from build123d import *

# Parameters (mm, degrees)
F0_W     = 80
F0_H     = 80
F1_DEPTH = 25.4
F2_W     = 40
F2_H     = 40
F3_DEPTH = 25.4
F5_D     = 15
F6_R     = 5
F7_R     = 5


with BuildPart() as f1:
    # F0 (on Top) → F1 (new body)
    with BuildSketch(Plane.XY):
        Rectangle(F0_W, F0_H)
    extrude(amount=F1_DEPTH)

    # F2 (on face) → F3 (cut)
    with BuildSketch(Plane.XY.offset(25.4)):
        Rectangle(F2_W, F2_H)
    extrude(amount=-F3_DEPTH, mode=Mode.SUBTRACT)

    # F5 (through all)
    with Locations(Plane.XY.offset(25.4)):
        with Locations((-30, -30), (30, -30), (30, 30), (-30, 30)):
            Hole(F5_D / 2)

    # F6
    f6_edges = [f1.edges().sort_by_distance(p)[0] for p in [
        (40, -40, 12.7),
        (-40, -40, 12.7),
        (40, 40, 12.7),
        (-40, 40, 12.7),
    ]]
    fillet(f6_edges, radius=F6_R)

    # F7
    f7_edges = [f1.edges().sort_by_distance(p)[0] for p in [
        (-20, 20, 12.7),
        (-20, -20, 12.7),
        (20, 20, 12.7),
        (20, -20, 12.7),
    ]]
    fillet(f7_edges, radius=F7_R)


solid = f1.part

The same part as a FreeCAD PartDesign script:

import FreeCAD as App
import Part
import Sketcher
from FreeCAD import Vector


def edges_at(feature, points):
    """Names of the edges that pass closest to the given points."""
    edges = feature.Shape.Edges
    near = lambda p: min(range(len(edges)), key=lambda i: edges[i].distToShape(Part.Vertex(*p))[0])
    return sorted({f"Edge{near(p) + 1}" for p in points})

doc = App.newDocument("Part")
body = doc.addObject("PartDesign::Body", "Body")

# Sketch on XY plane
sketch1 = body.newObject("Sketcher::SketchObject", "Sketch")
sketch1.AttachmentSupport = (doc.getObject("XY_Plane"), [""])
sketch1.MapMode = "FlatFace"
sketch1.addGeometry(Part.LineSegment(Vector(-40, 40, 0), Vector(-40, -40, 0)), False)
sketch1.addGeometry(Part.LineSegment(Vector(-40, -40, 0), Vector(40, -40, 0)), False)
sketch1.addGeometry(Part.LineSegment(Vector(40, -40, 0), Vector(40, 40, 0)), False)
sketch1.addGeometry(Part.LineSegment(Vector(40, 40, 0), Vector(-40, 40, 0)), False)
sketch1.addConstraint(Sketcher.Constraint("Coincident", 0, 2, 1, 1))
sketch1.addConstraint(Sketcher.Constraint("Coincident", 1, 2, 2, 1))
sketch1.addConstraint(Sketcher.Constraint("Coincident", 2, 2, 3, 1))
sketch1.addConstraint(Sketcher.Constraint("Coincident", 3, 2, 0, 1))
sketch1.addConstraint(Sketcher.Constraint("Vertical", 0))
sketch1.addConstraint(Sketcher.Constraint("Horizontal", 1))
sketch1.addConstraint(Sketcher.Constraint("Vertical", 2))
sketch1.addConstraint(Sketcher.Constraint("Horizontal", 3))
sketch1.addConstraint(Sketcher.Constraint("Symmetric", 0, 2, 2, 2, -1, 1))
sketch1.addConstraint(Sketcher.Constraint("Equal", 3, 0))
sketch1.addConstraint(Sketcher.Constraint("DistanceX", 1, 1, 1, 2, 80.0))
pad1 = body.newObject("PartDesign::Pad", "Pad")
pad1.Profile = sketch1
pad1.Length = 25.4

# Sketch on XY plane
sketch2 = body.newObject("Sketcher::SketchObject", "Sketch001")
sketch2.AttachmentSupport = (doc.getObject("XY_Plane"), [""])
sketch2.MapMode = "FlatFace"
sketch2.AttachmentOffset = App.Placement(Vector(0, 0, 25.4), App.Rotation())
sketch2.addGeometry(Part.LineSegment(Vector(-20, 20, 0), Vector(-20, -20, 0)), False)
sketch2.addGeometry(Part.LineSegment(Vector(-20, -20, 0), Vector(20, -20, 0)), False)
sketch2.addGeometry(Part.LineSegment(Vector(20, -20, 0), Vector(20, 20, 0)), False)
sketch2.addGeometry(Part.LineSegment(Vector(20, 20, 0), Vector(-20, 20, 0)), False)
sketch2.addConstraint(Sketcher.Constraint("Coincident", 0, 2, 1, 1))
sketch2.addConstraint(Sketcher.Constraint("Coincident", 1, 2, 2, 1))
sketch2.addConstraint(Sketcher.Constraint("Coincident", 2, 2, 3, 1))
sketch2.addConstraint(Sketcher.Constraint("Coincident", 3, 2, 0, 1))
sketch2.addConstraint(Sketcher.Constraint("Vertical", 0))
sketch2.addConstraint(Sketcher.Constraint("Horizontal", 1))
sketch2.addConstraint(Sketcher.Constraint("Vertical", 2))
sketch2.addConstraint(Sketcher.Constraint("Horizontal", 3))
sketch2.addConstraint(Sketcher.Constraint("Symmetric", 0, 2, 2, 2, -1, 1))
sketch2.addConstraint(Sketcher.Constraint("Equal", 3, 0))
sketch2.addConstraint(Sketcher.Constraint("DistanceX", 1, 1, 1, 2, 40.0))
pocket1 = body.newObject("PartDesign::Pocket", "Pocket")
pocket1.Profile = sketch2
pocket1.Length = 25.4

# Sketch on XY plane
sketch3 = body.newObject("Sketcher::SketchObject", "Sketch002")
sketch3.AttachmentSupport = (doc.getObject("XY_Plane"), [""])
sketch3.MapMode = "FlatFace"
sketch3.AttachmentOffset = App.Placement(Vector(0, 0, 25.4), App.Rotation())
sketch3.addGeometry(Part.Circle(Vector(-30, -30, 0), Vector(0, 0, 1), 8), False)
sketch3.addGeometry(Part.Circle(Vector(30, -30, 0), Vector(0, 0, 1), 8), False)
sketch3.addGeometry(Part.Circle(Vector(30, 30, 0), Vector(0, 0, 1), 8), False)
sketch3.addGeometry(Part.Circle(Vector(-30, 30, 0), Vector(0, 0, 1), 8), False)
sketch3.addConstraint(Sketcher.Constraint("Equal", 0, 1))
sketch3.addConstraint(Sketcher.Constraint("Equal", 1, 2))
sketch3.addConstraint(Sketcher.Constraint("Equal", 2, 3))
sketch3.addConstraint(Sketcher.Constraint("Symmetric", 0, 3, 2, 3, -1, 1))
sketch3.addConstraint(Sketcher.Constraint("Symmetric", 1, 3, 3, 3, -1, 1))
sketch3.addConstraint(Sketcher.Constraint("Symmetric", 0, 3, 1, 3, -2))
sketch3.addConstraint(Sketcher.Constraint("Diameter", 0, 15.0))
sketch3.addConstraint(Sketcher.Constraint("DistanceX", 0, 3, -1, 1, 30.0))
sketch3.addConstraint(Sketcher.Constraint("DistanceY", 0, 3, -1, 1, 30.0))
doc.recompute()
hole = body.newObject("PartDesign::Hole", "Hole")
hole.Profile = sketch3
hole.ThreadType = "None"
hole.Diameter = 15
hole.DepthType = "ThroughAll"
doc.recompute()

fillet = body.newObject("PartDesign::Fillet", "Fillet")
fillet.Base = (hole, edges_at(hole, [
    (40, -40, 12.7),
    (-40, -40, 12.7),
    (40, 40, 12.7),
    (-40, 40, 12.7),
]))
fillet.Radius = 5
doc.recompute()

fillet2 = body.newObject("PartDesign::Fillet", "Fillet001")
fillet2.Base = (fillet, edges_at(fillet, [
    (-20, 20, 12.7),
    (-20, -20, 12.7),
    (20, 20, 12.7),
    (20, -20, 12.7),
]))
fillet2.Radius = 5

doc.recompute()
